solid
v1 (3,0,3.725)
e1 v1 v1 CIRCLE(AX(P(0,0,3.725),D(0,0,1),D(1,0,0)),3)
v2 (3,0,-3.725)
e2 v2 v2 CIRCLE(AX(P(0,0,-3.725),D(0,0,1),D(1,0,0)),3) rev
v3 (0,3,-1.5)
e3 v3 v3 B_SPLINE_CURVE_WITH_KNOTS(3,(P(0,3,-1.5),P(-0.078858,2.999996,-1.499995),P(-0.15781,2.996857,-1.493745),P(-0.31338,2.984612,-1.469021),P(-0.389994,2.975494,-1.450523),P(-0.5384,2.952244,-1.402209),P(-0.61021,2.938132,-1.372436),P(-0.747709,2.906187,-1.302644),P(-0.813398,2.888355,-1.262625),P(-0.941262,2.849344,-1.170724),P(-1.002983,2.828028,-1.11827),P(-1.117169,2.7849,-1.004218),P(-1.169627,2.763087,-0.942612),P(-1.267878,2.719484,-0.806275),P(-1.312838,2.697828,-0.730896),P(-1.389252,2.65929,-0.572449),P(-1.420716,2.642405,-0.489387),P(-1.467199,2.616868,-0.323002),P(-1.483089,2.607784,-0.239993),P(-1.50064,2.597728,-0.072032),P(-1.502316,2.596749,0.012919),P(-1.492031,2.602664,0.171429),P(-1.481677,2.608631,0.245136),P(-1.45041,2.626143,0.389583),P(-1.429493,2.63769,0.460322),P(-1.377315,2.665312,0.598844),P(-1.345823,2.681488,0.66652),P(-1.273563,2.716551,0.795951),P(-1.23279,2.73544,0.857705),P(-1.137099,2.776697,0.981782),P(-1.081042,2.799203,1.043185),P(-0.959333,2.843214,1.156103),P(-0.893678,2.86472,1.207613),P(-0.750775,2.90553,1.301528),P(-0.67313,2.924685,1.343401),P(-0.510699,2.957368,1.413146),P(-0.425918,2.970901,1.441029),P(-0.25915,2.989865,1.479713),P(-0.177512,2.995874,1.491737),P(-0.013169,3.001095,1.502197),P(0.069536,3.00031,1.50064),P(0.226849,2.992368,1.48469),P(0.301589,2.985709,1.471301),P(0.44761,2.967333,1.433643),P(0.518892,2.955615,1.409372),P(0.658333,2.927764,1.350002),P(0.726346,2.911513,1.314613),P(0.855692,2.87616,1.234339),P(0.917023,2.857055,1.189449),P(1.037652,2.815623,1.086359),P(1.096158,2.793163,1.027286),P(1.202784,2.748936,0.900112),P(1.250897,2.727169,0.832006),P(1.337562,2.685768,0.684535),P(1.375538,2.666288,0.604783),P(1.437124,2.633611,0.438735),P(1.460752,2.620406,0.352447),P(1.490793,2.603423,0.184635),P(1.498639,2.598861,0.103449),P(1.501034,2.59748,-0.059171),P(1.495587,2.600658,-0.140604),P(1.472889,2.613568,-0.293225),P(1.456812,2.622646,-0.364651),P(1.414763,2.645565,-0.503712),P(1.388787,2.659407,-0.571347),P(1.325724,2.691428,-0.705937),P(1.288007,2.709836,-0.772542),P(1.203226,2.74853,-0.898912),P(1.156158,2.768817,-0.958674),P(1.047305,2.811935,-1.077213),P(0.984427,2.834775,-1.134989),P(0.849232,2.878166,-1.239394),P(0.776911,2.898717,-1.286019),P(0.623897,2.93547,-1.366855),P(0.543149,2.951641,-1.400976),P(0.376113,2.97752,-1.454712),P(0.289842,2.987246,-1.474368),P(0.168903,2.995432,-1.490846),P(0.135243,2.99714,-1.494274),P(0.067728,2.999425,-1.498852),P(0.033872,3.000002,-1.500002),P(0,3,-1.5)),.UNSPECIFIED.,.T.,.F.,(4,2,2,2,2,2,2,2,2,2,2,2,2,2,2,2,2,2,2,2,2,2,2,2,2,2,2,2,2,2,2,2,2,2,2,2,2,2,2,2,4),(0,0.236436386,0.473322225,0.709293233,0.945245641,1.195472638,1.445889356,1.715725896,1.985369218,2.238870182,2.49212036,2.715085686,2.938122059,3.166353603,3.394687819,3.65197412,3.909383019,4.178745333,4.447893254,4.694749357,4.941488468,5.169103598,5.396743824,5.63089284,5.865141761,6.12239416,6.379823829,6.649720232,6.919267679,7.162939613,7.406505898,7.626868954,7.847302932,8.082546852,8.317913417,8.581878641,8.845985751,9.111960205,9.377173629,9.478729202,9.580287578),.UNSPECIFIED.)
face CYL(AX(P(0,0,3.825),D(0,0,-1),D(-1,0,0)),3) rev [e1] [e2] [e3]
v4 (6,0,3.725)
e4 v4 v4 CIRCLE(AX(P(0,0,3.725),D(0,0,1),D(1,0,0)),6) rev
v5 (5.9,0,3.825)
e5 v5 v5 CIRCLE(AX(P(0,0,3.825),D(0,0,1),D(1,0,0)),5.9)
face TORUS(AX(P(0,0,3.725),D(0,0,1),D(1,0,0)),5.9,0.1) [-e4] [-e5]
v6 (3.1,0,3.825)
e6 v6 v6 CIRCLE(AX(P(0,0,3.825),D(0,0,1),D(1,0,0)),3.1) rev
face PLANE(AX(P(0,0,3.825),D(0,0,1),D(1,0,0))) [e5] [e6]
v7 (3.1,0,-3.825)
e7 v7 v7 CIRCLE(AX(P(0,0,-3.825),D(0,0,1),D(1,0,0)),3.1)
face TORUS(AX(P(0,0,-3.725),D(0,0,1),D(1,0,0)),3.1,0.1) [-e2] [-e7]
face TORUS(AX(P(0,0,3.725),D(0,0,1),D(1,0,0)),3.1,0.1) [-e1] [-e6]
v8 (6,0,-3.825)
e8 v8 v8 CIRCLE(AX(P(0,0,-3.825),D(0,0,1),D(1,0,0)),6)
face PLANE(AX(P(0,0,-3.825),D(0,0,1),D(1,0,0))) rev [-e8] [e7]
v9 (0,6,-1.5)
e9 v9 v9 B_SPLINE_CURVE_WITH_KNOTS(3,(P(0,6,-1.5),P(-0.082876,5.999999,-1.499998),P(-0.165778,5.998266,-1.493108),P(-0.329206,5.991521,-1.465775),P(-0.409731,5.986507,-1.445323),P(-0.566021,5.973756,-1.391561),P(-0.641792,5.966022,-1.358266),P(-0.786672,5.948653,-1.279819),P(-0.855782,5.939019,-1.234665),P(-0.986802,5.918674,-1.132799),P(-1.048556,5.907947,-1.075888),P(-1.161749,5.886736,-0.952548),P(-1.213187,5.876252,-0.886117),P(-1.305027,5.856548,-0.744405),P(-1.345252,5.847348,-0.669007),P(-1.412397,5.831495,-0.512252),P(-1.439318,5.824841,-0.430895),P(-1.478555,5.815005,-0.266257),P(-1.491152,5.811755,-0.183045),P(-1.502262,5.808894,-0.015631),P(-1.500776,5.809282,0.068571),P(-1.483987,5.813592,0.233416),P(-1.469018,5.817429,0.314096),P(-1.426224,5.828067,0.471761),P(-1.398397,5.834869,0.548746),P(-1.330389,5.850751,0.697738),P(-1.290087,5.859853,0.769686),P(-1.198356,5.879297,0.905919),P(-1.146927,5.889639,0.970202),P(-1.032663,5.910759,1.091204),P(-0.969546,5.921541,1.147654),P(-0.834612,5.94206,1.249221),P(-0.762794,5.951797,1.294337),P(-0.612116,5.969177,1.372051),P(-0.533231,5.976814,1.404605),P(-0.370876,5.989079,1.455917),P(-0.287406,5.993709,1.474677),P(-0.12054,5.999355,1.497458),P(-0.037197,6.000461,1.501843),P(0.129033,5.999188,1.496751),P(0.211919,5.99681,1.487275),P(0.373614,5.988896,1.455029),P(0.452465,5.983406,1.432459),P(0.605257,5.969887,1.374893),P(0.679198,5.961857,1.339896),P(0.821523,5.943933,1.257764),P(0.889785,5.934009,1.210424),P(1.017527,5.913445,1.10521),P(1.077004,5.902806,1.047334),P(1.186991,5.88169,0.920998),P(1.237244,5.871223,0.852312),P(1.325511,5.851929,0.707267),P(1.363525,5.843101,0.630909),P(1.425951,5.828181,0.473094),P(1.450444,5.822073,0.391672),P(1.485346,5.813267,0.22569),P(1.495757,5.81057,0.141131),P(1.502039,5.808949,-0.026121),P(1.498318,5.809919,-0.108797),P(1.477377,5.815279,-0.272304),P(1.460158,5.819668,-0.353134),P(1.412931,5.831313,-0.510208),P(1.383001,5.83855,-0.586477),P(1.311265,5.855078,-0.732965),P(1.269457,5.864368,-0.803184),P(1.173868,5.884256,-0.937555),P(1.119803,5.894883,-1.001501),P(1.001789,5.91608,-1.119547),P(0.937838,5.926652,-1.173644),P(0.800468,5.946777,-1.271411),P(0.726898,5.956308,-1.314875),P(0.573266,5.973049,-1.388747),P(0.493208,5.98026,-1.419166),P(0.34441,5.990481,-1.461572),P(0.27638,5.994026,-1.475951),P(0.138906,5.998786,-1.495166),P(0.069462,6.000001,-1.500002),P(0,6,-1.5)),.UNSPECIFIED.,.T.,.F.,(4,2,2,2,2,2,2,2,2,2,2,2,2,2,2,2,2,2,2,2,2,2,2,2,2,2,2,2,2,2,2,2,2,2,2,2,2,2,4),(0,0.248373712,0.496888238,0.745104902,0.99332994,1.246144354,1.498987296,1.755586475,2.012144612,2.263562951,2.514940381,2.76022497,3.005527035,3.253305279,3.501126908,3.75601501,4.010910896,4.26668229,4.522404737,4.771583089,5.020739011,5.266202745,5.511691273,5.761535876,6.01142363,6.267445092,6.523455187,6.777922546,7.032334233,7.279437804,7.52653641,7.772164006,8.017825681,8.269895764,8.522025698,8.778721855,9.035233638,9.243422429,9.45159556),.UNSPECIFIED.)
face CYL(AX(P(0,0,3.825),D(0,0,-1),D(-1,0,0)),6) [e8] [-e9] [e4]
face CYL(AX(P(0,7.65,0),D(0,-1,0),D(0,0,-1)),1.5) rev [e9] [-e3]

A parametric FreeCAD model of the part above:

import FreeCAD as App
import Part
import Sketcher


def edges_at(feature, points):
    """Names of the edges that pass closest to the given points."""
    edges = feature.Shape.Edges
    near = lambda p: min(range(len(edges)), key=lambda i: edges[i].distToShape(Part.Vertex(*p))[0])
    return sorted({f"Edge{near(p) + 1}" for p in points})

doc = App.newDocument("Part")
body = doc.addObject("PartDesign::Body", "Body")

# Sketch on XY plane
sketch1 = body.newObject("Sketcher::SketchObject", "Sketch")
sketch1.AttachmentSupport = (doc.getObject("XY_Plane"), [""])
sketch1.MapMode = "FlatFace"
sketch1.addGeometry([
    Part.Circle(App.Vector(0, 0, 0), App.Vector(0, 0, 1), 6),
    Part.Circle(App.Vector(0, 0, 0), App.Vector(0, 0, 1), 3),
], False)
sketch1.addConstraint([
    Sketcher.Constraint("Coincident", 0, 3, -1, 1),
    Sketcher.Constraint("Coincident", 1, 3, -1, 1),
    Sketcher.Constraint("Diameter", 0, 12.0),
    Sketcher.Constraint("Diameter", 1, 6.0),
])
pad1 = body.newObject("PartDesign::Pad", "Pad")
pad1.Profile = sketch1
pad1.Length = 7.65
pad1.Midplane = True
doc.recompute()

fillet = body.newObject("PartDesign::Fillet", "Fillet")
fillet.Base = (pad1, edges_at(pad1, [(-6, 0, 3.825), (-3, 0, -3.825), (-3, 0, 3.825)]))
fillet.Radius = 0.1

# Sketch on XZ plane
sketch2 = body.newObject("Sketcher::SketchObject", "Sketch001")
sketch2.AttachmentSupport = (doc.getObject("XZ_Plane"), [""])
sketch2.MapMode = "FlatFace"
sketch2.addGeometry(Part.Circle(App.Vector(0, 0, 0), App.Vector(0, 0, 1), 1.5), False)
sketch2.addConstraint([
    Sketcher.Constraint("Coincident", 0, 3, -1, 1),
    Sketcher.Constraint("Diameter", 0, 3.0),
])
pocket1 = body.newObject("PartDesign::Pocket", "Pocket")
pocket1.Profile = sketch2
pocket1.Length = 7.65

doc.recompute()
